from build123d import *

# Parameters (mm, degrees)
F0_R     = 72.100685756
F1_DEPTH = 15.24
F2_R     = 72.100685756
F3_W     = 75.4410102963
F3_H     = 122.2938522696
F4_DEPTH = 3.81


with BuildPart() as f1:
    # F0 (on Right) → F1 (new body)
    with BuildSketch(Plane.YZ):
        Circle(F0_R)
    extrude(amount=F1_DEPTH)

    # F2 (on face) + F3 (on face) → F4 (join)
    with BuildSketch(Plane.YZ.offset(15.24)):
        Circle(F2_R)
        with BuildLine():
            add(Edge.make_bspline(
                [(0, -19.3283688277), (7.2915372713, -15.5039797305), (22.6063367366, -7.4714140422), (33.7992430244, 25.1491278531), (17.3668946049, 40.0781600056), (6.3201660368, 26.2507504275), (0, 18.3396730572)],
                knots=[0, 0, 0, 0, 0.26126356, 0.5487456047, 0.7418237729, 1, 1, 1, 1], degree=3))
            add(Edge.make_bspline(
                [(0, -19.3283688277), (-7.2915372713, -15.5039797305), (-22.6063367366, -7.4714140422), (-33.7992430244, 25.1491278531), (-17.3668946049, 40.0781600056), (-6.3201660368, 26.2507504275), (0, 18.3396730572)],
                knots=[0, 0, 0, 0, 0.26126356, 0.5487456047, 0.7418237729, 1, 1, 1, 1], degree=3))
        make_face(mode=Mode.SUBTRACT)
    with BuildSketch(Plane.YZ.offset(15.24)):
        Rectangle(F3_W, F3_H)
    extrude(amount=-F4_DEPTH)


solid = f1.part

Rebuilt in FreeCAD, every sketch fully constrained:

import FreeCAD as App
import Part
import Sketcher
from FreeCAD import Vector
Q = App.Units.Quantity

doc = App.newDocument("Part")
body = doc.addObject("PartDesign::Body", "Body")

sketch1 = body.newObject("Sketcher::SketchObject", "Sketch")
sketch1.AttachmentSupport = (doc.getObject("YZ_Plane"), [""])
sketch1.MapMode = "FlatFace"
sketch1.addGeometry(Part.Circle(Vector(0, 0, 0), Vector(0, 0, 1), 72), False)
sketch1.addConstraint(Sketcher.Constraint("Coincident", 0, 3, -1, 1))
sketch1.addConstraint(Sketcher.Constraint("Diameter", 0, 144.201372))
pad1 = body.newObject("PartDesign::Pad", "Pad")
pad1.Profile = sketch1
pad1.Length = Q("0.6 in")

sketch2 = body.newObject("Sketcher::SketchObject", "Sketch001")
sketch2.AttachmentSupport = (doc.getObject("YZ_Plane"), [""])
sketch2.MapMode = "FlatFace"
sketch2.AttachmentOffset = App.Placement(Vector(0, 0, 0.6 * 25.4), App.Rotation())
sketch2.addGeometry(Part.Circle(Vector(0, 0, 0), Vector(0, 0, 1), 72), False)
sketch2.addConstraint(Sketcher.Constraint("Coincident", 0, 3, -1, 1))
sketch2.addConstraint(Sketcher.Constraint("Diameter", 0, 144.201372))
pad2 = body.newObject("PartDesign::Pad", "Pad001")
pad2.Profile = sketch2
pad2.Length = Q("0.15 in")
pad2.Reversed = True

doc.recompute()
